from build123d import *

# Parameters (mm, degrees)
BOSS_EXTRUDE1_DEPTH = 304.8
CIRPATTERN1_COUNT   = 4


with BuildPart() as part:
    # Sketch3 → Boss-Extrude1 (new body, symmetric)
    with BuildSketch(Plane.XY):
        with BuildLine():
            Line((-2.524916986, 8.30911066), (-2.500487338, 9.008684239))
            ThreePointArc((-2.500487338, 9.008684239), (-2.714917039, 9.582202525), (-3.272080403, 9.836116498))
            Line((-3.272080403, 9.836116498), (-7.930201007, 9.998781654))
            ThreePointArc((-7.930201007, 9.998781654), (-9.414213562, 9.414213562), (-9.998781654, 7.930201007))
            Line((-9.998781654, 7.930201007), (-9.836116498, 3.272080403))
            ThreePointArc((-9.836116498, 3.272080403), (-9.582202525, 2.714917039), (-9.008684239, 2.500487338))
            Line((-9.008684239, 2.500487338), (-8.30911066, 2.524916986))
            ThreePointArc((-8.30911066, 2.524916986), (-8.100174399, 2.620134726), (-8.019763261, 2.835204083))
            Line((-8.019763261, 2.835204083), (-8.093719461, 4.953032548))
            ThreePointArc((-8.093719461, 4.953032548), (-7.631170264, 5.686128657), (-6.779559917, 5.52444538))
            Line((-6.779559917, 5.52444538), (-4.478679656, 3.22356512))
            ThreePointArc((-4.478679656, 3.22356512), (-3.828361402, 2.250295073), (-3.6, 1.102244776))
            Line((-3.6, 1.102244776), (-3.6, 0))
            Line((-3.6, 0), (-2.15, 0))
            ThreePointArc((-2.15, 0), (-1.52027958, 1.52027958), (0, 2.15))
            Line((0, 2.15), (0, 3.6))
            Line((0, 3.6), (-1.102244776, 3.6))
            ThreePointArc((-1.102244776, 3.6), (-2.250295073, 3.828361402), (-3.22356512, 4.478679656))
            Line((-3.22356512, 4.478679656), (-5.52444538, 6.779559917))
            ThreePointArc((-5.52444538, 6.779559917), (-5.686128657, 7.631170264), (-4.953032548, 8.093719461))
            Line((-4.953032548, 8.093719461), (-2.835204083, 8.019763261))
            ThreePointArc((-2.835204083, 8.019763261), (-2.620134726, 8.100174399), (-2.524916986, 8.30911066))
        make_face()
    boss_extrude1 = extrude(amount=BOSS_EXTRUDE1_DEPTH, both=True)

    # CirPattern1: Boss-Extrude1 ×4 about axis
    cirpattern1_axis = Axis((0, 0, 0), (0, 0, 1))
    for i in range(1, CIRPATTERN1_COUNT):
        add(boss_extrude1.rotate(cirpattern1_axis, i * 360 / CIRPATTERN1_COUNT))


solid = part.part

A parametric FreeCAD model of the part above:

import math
import FreeCAD as App
import Part
import Sketcher
from FreeCAD import Vector
Q = App.Units.Quantity

doc = App.newDocument("Part")
body = doc.addObject("PartDesign::Body", "Body")

sketch1 = body.newObject("Sketcher::SketchObject", "Sketch")
sketch1.AttachmentSupport = (doc.getObject("XY_Plane"), [""])
sketch1.MapMode = "FlatFace"
sketch1.addGeometry([
    Part.LineSegment(Vector(-2.52, 8.31, 0), Vector(-2.5, 9.01, 0)),
    Part.ArcOfCircle(Part.Circle(Vector(-3.3, 9.04, 0), Vector(0, 0, 1), 0.8), math.radians(-2), math.radians(88)),
    Part.LineSegment(Vector(-3.27, 9.84, 0), Vector(-7.93, 10, 0)),
    Part.ArcOfCircle(Part.Circle(Vector(-8, 8, 0), Vector(0, 0, 1), 2), math.radians(88), math.radians(182)),
    Part.LineSegment(Vector(-10, 7.93, 0), Vector(-9.84, 3.27, 0)),
    Part.ArcOfCircle(Part.Circle(Vector(-9.04, 3.3, 0), Vector(0, 0, 1), 0.8), math.radians(-178), math.radians(-88)),
    Part.LineSegment(Vector(-9.01, 2.5, 0), Vector(-8.31, 2.52, 0)),
    Part.ArcOfCircle(Part.Circle(Vector(-8.32, 2.82, 0), Vector(0, 0, 1), 0.3), math.radians(-88), math.radians(2)),
    Part.LineSegment(Vector(-8.02, 2.84, 0), Vector(-8.09, 4.95, 0)),
    Part.ArcOfCircle(Part.Circle(Vector(-7.32, 4.98, 0), Vector(0, 0, 1), 0.77), math.radians(45), math.radians(182)),
    Part.LineSegment(Vector(-6.78, 5.52, 0), Vector(-4.48, 3.22, 0)),
    Part.ArcOfCircle(Part.Circle(Vector(-6.6, 1.1, 0), Vector(0, 0, 1), 3), math.radians(0), math.radians(45)),
    Part.LineSegment(Vector(-3.6, 1.1, 0), Vector(-3.6, 0, 0)),
    Part.LineSegment(Vector(-3.6, 0, 0), Vector(-2.15, 0, 0)),
    Part.ArcOfCircle(Part.Circle(Vector(0, 0, 0), Vector(0, 0, 1), 2.15), math.radians(90), math.radians(180)),
    Part.LineSegment(Vector(0, 2.15, 0), Vector(0, 3.6, 0)),
    Part.LineSegment(Vector(0, 3.6, 0), Vector(-1.1, 3.6, 0)),
    Part.ArcOfCircle(Part.Circle(Vector(-1.1, 6.6, 0), Vector(0, 0, 1), 3), math.radians(-135), math.radians(-90)),
    Part.LineSegment(Vector(-3.22, 4.48, 0), Vector(-5.52, 6.78, 0)),
    Part.ArcOfCircle(Part.Circle(Vector(-4.98, 7.32, 0), Vector(0, 0, 1), 0.77), math.radians(88), math.radians(225)),
    Part.LineSegment(Vector(-4.95, 8.09, 0), Vector(-2.84, 8.02, 0)),
    Part.ArcOfCircle(Part.Circle(Vector(-2.82, 8.32, 0), Vector(0, 0, 1), 0.3), math.radians(-92), math.radians(-2)),
], False)
sketch1.addConstraint([
    Sketcher.Constraint("Tangent", 0, 2, 1, 1),
    Sketcher.Constraint("Tangent", 1, 2, 2, 1),
    Sketcher.Constraint("Tangent", 2, 2, 3, 1),
    Sketcher.Constraint("Tangent", 3, 2, 4, 1),
    Sketcher.Constraint("Tangent", 4, 2, 5, 1),
    Sketcher.Constraint("Tangent", 5, 2, 6, 1),
    Sketcher.Constraint("Tangent", 6, 2, 7, 1),
    Sketcher.Constraint("Tangent", 7, 2, 8, 1),
    Sketcher.Constraint("Tangent", 8, 2, 9, 2),
    Sketcher.Constraint("Tangent", 9, 1, 10, 1),
    Sketcher.Constraint("Tangent", 10, 2, 11, 2),
    Sketcher.Constraint("Tangent", 11, 1, 12, 1),
    Sketcher.Constraint("Coincident", 12, 2, 13, 1),
    Sketcher.Constraint("Coincident", 13, 2, 14, 2),
    Sketcher.Constraint("Coincident", 14, 1, 15, 1),
    Sketcher.Constraint("Coincident", 15, 2, 16, 1),
    Sketcher.Constraint("Tangent", 16, 2, 17, 2),
    Sketcher.Constraint("Tangent", 17, 1, 18, 1),
    Sketcher.Constraint("Tangent", 18, 2, 19, 2),
    Sketcher.Constraint("Tangent", 19, 1, 20, 1),
    Sketcher.Constraint("Tangent", 20, 2, 21, 1),
    Sketcher.Constraint("Tangent", 21, 2, 0, 1),
    Sketcher.Constraint("Vertical", 12),
    Sketcher.Constraint("Horizontal", 13),
    Sketcher.Constraint("Vertical", 15),
    Sketcher.Constraint("Horizontal", 16),
    Sketcher.Constraint("Coincident", 14, 3, -1, 1),
    Sketcher.Constraint("Equal", 1, 5),
    Sketcher.Constraint("Equal", 11, 17),
    Sketcher.Constraint("Equal", 9, 19),
    Sketcher.Constraint("Equal", 7, 21),
    Sketcher.Constraint("PointOnObject", 12, 2, -1),
    Sketcher.Constraint("PointOnObject", 14, 1, -2),
    Sketcher.Constraint("Perpendicular", 0, 2),
    Sketcher.Constraint("Perpendicular", 4, 6),
    Sketcher.Constraint("Perpendicular", 6, 8),
    Sketcher.Constraint("Parallel", 10, 18),
    Sketcher.Constraint("Parallel", 2, 20),
    Sketcher.Constraint("Equal", 16, 12),
    Sketcher.Constraint("Equal", 13, 15),
    Sketcher.Constraint("Equal", 2, 4),
    Sketcher.Constraint("Equal", 0, 6),
    Sketcher.Constraint("Equal", 10, 18),
    Sketcher.Constraint("Equal", 8, 20),
    Sketcher.Constraint("Radius", 3, Q("2 mm")),
    Sketcher.Constraint("Radius", 11, Q("3 mm")),
    Sketcher.Constraint("Radius", 1, Q("0.8 mm")),
    Sketcher.Constraint("Radius", 7, Q("0.3 mm")),
    Sketcher.Constraint("Angle", 0, Q("88 deg")),
    Sketcher.Constraint("Angle", 4, Q("-88 deg")),
    Sketcher.Constraint("Radius", 14, Q("2.15 mm")),
    Sketcher.Constraint("DistanceX", 3, 3, -1, 1, Q("8 mm")),
    Sketcher.Constraint("Distance", 0, Q("0.7 mm")),
    Sketcher.Constraint("DistanceX", 13, 1, 13, 2, Q("1.45 mm")),
    Sketcher.Constraint("DistanceX", 1, 3, -1, 1, Q("3.3 mm")),
    Sketcher.Constraint("Radius", 9, Q("0.770092 mm")),
    Sketcher.Constraint("DistanceY", 7, 3, 8, 2, Q("2.128298 mm")),
])
pad1 = body.newObject("PartDesign::Pad", "Pad")
pad1.Profile = sketch1
pad1.Length = 609.6
pad1.Midplane = True
doc.recompute()

polarpattern = body.newObject("PartDesign::PolarPattern", "PolarPattern")
polarpattern.Originals = [pad1]
polarpattern.Axis = (doc.getObject("Z_Axis"), [""])
polarpattern.Angle = 360
polarpattern.Occurrences = 4
body.Tip = polarpattern

doc.recompute()
